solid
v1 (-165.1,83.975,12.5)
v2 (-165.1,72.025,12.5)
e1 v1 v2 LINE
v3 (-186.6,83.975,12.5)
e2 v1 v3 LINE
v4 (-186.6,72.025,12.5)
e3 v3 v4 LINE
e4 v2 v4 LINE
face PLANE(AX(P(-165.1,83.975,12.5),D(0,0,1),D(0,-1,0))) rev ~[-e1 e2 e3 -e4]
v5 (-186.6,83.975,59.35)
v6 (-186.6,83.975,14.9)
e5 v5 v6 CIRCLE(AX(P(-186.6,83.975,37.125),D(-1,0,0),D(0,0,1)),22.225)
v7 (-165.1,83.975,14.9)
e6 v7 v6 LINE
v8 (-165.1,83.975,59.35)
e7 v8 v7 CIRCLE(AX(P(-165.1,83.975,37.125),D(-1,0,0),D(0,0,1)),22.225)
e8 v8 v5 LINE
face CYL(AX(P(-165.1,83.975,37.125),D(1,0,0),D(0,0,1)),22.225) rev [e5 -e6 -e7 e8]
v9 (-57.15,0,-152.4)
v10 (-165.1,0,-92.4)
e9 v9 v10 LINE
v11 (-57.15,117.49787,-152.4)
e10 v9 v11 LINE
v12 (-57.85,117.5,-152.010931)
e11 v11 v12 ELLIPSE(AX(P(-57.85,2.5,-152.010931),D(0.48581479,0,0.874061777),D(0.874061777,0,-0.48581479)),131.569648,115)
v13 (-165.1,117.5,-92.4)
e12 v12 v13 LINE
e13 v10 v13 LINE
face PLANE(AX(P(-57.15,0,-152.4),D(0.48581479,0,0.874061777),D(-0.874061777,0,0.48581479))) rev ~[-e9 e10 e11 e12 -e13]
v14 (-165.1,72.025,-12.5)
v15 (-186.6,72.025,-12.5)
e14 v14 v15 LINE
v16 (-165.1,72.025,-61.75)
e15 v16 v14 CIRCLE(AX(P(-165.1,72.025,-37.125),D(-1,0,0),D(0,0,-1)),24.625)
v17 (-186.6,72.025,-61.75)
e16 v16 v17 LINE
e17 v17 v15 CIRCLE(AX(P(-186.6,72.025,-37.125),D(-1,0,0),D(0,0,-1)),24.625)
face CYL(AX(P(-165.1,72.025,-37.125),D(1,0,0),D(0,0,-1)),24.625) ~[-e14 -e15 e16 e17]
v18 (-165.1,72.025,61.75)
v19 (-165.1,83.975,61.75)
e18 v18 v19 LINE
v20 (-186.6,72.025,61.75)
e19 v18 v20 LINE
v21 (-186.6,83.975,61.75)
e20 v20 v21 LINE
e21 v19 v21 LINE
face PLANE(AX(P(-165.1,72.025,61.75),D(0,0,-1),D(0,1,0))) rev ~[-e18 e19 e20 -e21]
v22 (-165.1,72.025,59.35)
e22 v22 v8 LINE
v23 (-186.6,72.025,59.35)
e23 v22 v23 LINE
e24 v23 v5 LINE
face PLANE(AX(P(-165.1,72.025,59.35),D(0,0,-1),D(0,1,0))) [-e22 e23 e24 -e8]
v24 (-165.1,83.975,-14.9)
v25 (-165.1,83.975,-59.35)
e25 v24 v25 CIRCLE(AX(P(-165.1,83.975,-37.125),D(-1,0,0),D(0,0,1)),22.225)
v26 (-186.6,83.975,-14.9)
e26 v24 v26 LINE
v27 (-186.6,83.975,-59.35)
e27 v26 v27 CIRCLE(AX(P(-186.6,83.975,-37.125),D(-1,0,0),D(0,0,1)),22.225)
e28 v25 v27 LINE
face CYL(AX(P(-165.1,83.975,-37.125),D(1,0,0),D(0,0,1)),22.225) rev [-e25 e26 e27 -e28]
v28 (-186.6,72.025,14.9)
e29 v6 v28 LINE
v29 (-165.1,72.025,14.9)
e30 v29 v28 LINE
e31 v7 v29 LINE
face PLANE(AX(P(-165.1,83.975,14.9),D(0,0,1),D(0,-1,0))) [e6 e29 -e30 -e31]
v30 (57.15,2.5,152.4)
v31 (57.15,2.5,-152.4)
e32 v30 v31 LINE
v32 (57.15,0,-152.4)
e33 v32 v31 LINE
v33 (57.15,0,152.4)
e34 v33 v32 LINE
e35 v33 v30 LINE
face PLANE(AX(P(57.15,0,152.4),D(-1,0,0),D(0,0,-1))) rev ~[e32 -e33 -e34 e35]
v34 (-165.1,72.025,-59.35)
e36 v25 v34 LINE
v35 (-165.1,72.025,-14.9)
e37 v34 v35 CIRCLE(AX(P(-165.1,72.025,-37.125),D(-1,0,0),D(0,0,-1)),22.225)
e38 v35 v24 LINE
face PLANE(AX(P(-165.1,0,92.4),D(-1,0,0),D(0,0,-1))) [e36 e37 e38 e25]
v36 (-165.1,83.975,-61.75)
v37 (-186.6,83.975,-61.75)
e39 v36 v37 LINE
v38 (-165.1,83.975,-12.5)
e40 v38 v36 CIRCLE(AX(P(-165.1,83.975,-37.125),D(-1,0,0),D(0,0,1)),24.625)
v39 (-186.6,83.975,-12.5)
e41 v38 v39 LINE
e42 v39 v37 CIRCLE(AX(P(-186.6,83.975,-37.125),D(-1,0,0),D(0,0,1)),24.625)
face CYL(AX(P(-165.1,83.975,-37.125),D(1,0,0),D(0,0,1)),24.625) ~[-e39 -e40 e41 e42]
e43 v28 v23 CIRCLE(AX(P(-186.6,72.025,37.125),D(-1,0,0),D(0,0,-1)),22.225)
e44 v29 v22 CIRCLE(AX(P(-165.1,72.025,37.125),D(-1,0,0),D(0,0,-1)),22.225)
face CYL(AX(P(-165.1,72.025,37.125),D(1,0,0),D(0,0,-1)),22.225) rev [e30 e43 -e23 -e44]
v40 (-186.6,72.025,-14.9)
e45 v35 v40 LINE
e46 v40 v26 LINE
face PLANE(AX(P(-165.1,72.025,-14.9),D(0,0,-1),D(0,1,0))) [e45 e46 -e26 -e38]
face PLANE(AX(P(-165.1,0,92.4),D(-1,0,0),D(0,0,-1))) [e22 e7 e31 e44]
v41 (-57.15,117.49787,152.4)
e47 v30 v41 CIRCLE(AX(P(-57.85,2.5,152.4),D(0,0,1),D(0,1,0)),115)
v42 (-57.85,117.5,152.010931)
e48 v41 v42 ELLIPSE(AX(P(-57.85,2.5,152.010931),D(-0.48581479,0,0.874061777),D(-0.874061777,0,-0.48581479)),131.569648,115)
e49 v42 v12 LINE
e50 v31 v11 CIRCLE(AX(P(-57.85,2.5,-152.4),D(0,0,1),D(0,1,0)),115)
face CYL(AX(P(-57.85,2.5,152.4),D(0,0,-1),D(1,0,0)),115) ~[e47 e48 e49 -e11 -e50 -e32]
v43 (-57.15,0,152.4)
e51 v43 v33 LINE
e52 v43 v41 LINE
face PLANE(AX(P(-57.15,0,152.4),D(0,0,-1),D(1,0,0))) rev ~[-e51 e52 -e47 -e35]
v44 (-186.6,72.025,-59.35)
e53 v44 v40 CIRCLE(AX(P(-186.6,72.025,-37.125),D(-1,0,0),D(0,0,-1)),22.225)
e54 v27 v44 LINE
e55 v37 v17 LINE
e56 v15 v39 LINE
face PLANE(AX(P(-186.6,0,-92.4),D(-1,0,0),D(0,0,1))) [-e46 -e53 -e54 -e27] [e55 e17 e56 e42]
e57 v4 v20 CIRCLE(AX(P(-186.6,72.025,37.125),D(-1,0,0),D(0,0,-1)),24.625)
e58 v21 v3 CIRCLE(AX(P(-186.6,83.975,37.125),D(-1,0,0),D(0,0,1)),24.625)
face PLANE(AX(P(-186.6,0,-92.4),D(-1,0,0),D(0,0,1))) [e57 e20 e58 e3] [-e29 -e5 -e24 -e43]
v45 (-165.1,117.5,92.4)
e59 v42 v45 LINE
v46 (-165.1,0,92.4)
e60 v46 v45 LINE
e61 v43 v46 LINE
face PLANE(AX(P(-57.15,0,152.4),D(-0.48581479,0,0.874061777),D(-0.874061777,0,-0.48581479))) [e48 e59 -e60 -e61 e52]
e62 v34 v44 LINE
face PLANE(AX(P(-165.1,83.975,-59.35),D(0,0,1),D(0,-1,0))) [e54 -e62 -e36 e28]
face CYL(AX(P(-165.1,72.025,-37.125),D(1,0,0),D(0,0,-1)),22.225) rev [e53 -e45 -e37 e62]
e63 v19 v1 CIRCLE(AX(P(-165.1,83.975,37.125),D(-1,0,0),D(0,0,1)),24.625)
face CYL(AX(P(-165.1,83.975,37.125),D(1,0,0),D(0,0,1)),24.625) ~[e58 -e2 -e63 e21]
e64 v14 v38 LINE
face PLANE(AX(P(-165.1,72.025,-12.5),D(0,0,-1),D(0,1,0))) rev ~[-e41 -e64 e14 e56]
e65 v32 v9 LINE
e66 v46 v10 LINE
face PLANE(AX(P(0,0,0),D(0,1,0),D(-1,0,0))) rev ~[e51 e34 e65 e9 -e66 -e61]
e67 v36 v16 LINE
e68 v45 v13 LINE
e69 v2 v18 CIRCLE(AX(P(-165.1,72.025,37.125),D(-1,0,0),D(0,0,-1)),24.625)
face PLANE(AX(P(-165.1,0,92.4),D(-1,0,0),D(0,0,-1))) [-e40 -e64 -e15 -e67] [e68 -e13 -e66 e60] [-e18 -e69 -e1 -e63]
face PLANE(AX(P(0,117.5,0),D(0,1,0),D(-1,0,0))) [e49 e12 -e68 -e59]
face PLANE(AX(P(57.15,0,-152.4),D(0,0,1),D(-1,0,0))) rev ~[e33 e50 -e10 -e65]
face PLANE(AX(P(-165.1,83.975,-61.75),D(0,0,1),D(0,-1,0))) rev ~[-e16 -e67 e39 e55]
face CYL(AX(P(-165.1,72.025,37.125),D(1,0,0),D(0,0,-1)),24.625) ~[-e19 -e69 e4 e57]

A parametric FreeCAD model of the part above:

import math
import FreeCAD as App
import Part
import Sketcher
Q = App.Units.Quantity


def edges_at(feature, points):
    """Names of the edges that pass closest to the given points."""
    edges = feature.Shape.Edges
    near = lambda p: min(range(len(edges)), key=lambda i: edges[i].distToShape(Part.Vertex(*p))[0])
    return sorted({f"Edge{near(p) + 1}" for p in points})


def add_polygon(sketch, points):
    """Adds a closed chain of lines whose ends are joined by coincident constraints."""
    first, n = sketch.GeometryCount, len(points)
    for a, b in zip(points, points[1:] + points[:1]):
        sketch.addGeometry(Part.LineSegment(App.Vector(*a, 0), App.Vector(*b, 0)), False)
    for i in range(n):
        sketch.addConstraint(Sketcher.Constraint("Coincident", first + i, 2, first + (i + 1) % n, 1))

doc = App.newDocument("Part")
body = doc.addObject("PartDesign::Body", "Body")

# Sketch on XZ plane
sketch1 = body.newObject("Sketcher::SketchObject", "Sketch")
sketch1.AttachmentSupport = (doc.getObject("XZ_Plane"), [""])
sketch1.MapMode = "FlatFace"
add_polygon(sketch1, [(57, -152), (-57, -152), (-165, -92), (-165, 92), (-57, 152), (57, 152)])  # lines 0-5
sketch1.addConstraint([
    Sketcher.Constraint("Horizontal", 0),
    Sketcher.Constraint("Vertical", 2),
    Sketcher.Constraint("Horizontal", 4),
    Sketcher.Constraint("Vertical", 5),
    Sketcher.Constraint("Symmetric", 0, 2, 4, 2, -1, 1),
    Sketcher.Constraint("Vertical", 0, 2, 3, 2),
    Sketcher.Constraint("Equal", 1, 3),
    Sketcher.Constraint("DistanceX", 0, 2, 0, 1, Q("114.3 mm")),
    Sketcher.Constraint("DistanceY", 5, 2, 5, 1, Q("304.8 mm")),
    Sketcher.Constraint("DistanceY", 0, 2, 1, 2, Q("60 mm")),
    Sketcher.Constraint("DistanceX", 1, 2, 0, 2, Q("107.95 mm")),
])
pad1 = body.newObject("PartDesign::Pad", "Pad")
pad1.Profile = sketch1
pad1.Length = 117.5
pad1.Reversed = True
doc.recompute()

fillet = body.newObject("PartDesign::Fillet", "Fillet")
fillet.Base = (pad1, edges_at(pad1, [(57.15, 117.5, 0)]))
fillet.Radius = 115

# Sketch on YZ plane
sketch2 = body.newObject("Sketcher::SketchObject", "Sketch001")
sketch2.AttachmentSupport = (doc.getObject("YZ_Plane"), [""])
sketch2.MapMode = "FlatFace"
sketch2.AttachmentOffset = App.Placement(App.Vector(0, 0, -165.1), App.Rotation())
sketch2.addGeometry([
    Part.ArcOfCircle(Part.Circle(App.Vector(84, -37, 0), App.Vector(0, 0, 1), 25), math.radians(-90), math.radians(90)),  # 0
    Part.LineSegment(App.Vector(84, -62, 0), App.Vector(72, -62, 0)),  # 1
    Part.ArcOfCircle(Part.Circle(App.Vector(72, -37, 0), App.Vector(0, 0, 1), 25), math.radians(90), math.radians(270)),  # 2
    Part.LineSegment(App.Vector(72, -12, 0), App.Vector(84, -12, 0)),  # 3
    Part.LineSegment(App.Vector(72, -59, 0), App.Vector(84, -59, 0)),  # 4
    Part.ArcOfCircle(Part.Circle(App.Vector(84, -37, 0), App.Vector(0, 0, 1), 22), math.radians(-90), math.radians(90)),  # 5
    Part.LineSegment(App.Vector(84, -15, 0), App.Vector(72, -15, 0)),  # 6
    Part.ArcOfCircle(Part.Circle(App.Vector(72, -37, 0), App.Vector(0, 0, 1), 22), math.radians(90), math.radians(270)),  # 7
    Part.ArcOfCircle(Part.Circle(App.Vector(84, 37, 0), App.Vector(0, 0, 1), 25), math.radians(-90), math.radians(90)),  # 8
    Part.LineSegment(App.Vector(84, 12, 0), App.Vector(72, 12, 0)),  # 9
    Part.ArcOfCircle(Part.Circle(App.Vector(72, 37, 0), App.Vector(0, 0, 1), 25), math.radians(90), math.radians(270)),  # 10
    Part.LineSegment(App.Vector(72, 62, 0), App.Vector(84, 62, 0)),  # 11
    Part.LineSegment(App.Vector(72, 15, 0), App.Vector(84, 15, 0)),  # 12
    Part.ArcOfCircle(Part.Circle(App.Vector(84, 37, 0), App.Vector(0, 0, 1), 22), math.radians(-90), math.radians(90)),  # 13
    Part.LineSegment(App.Vector(84, 59, 0), App.Vector(72, 59, 0)),  # 14
    Part.ArcOfCircle(Part.Circle(App.Vector(72, 37, 0), App.Vector(0, 0, 1), 22), math.radians(90), math.radians(270)),  # 15
], False)
sketch2.addConstraint([
    Sketcher.Constraint("Tangent", 0, 1, 1, 1),
    Sketcher.Constraint("Tangent", 1, 2, 2, 2),
    Sketcher.Constraint("Tangent", 2, 1, 3, 1),
    Sketcher.Constraint("Tangent", 3, 2, 0, 2),
    Sketcher.Constraint("Tangent", 4, 2, 5, 1),
    Sketcher.Constraint("Tangent", 5, 2, 6, 1),
    Sketcher.Constraint("Tangent", 6, 2, 7, 1),
    Sketcher.Constraint("Tangent", 7, 2, 4, 1),
    Sketcher.Constraint("Tangent", 8, 1, 9, 1),
    Sketcher.Constraint("Tangent", 9, 2, 10, 2),
    Sketcher.Constraint("Tangent", 10, 1, 11, 1),
    Sketcher.Constraint("Tangent", 11, 2, 8, 2),
    Sketcher.Constraint("Tangent", 12, 2, 13, 1),
    Sketcher.Constraint("Tangent", 13, 2, 14, 1),
    Sketcher.Constraint("Tangent", 14, 2, 15, 1),
    Sketcher.Constraint("Tangent", 15, 2, 12, 1),
    Sketcher.Constraint("Horizontal", 1),
    Sketcher.Constraint("Horizontal", 3),
    Sketcher.Constraint("Horizontal", 4),
    Sketcher.Constraint("Horizontal", 6),
    Sketcher.Constraint("Horizontal", 9),
    Sketcher.Constraint("Horizontal", 11),
    Sketcher.Constraint("Horizontal", 12),
    Sketcher.Constraint("Horizontal", 14),
    Sketcher.Constraint("Coincident", 5, 3, 0, 3),
    Sketcher.Constraint("Coincident", 13, 3, 8, 3),
    Sketcher.Constraint("Equal", 2, 8),
    Sketcher.Constraint("Equal", 7, 13),
    Sketcher.Constraint("Symmetric", 0, 3, 8, 3, -1),
    Sketcher.Constraint("Vertical", 7, 3, 10, 3),
    Sketcher.Constraint("Vertical", 7, 3, 15, 3),
    Sketcher.Constraint("Vertical", 15, 3, 1, 2),
    Sketcher.Constraint("Radius", 0, Q("24.625 mm")),
    Sketcher.Constraint("DistanceY", 2, 1, -1, 1, Q("12.5 mm")),
    Sketcher.Constraint("DistanceY", 0, 1, 4, 2, Q("2.4 mm")),
    Sketcher.Constraint("DistanceX", 1, 2, 1, 1, Q("11.95 mm")),
    Sketcher.Constraint("DistanceX", -1, 1, 0, 3, Q("83.975 mm")),
])
pad2 = body.newObject("PartDesign::Pad", "Pad001")
pad2.Profile = sketch2
pad2.Length = 21.5
pad2.Reversed = True

doc.recompute()
